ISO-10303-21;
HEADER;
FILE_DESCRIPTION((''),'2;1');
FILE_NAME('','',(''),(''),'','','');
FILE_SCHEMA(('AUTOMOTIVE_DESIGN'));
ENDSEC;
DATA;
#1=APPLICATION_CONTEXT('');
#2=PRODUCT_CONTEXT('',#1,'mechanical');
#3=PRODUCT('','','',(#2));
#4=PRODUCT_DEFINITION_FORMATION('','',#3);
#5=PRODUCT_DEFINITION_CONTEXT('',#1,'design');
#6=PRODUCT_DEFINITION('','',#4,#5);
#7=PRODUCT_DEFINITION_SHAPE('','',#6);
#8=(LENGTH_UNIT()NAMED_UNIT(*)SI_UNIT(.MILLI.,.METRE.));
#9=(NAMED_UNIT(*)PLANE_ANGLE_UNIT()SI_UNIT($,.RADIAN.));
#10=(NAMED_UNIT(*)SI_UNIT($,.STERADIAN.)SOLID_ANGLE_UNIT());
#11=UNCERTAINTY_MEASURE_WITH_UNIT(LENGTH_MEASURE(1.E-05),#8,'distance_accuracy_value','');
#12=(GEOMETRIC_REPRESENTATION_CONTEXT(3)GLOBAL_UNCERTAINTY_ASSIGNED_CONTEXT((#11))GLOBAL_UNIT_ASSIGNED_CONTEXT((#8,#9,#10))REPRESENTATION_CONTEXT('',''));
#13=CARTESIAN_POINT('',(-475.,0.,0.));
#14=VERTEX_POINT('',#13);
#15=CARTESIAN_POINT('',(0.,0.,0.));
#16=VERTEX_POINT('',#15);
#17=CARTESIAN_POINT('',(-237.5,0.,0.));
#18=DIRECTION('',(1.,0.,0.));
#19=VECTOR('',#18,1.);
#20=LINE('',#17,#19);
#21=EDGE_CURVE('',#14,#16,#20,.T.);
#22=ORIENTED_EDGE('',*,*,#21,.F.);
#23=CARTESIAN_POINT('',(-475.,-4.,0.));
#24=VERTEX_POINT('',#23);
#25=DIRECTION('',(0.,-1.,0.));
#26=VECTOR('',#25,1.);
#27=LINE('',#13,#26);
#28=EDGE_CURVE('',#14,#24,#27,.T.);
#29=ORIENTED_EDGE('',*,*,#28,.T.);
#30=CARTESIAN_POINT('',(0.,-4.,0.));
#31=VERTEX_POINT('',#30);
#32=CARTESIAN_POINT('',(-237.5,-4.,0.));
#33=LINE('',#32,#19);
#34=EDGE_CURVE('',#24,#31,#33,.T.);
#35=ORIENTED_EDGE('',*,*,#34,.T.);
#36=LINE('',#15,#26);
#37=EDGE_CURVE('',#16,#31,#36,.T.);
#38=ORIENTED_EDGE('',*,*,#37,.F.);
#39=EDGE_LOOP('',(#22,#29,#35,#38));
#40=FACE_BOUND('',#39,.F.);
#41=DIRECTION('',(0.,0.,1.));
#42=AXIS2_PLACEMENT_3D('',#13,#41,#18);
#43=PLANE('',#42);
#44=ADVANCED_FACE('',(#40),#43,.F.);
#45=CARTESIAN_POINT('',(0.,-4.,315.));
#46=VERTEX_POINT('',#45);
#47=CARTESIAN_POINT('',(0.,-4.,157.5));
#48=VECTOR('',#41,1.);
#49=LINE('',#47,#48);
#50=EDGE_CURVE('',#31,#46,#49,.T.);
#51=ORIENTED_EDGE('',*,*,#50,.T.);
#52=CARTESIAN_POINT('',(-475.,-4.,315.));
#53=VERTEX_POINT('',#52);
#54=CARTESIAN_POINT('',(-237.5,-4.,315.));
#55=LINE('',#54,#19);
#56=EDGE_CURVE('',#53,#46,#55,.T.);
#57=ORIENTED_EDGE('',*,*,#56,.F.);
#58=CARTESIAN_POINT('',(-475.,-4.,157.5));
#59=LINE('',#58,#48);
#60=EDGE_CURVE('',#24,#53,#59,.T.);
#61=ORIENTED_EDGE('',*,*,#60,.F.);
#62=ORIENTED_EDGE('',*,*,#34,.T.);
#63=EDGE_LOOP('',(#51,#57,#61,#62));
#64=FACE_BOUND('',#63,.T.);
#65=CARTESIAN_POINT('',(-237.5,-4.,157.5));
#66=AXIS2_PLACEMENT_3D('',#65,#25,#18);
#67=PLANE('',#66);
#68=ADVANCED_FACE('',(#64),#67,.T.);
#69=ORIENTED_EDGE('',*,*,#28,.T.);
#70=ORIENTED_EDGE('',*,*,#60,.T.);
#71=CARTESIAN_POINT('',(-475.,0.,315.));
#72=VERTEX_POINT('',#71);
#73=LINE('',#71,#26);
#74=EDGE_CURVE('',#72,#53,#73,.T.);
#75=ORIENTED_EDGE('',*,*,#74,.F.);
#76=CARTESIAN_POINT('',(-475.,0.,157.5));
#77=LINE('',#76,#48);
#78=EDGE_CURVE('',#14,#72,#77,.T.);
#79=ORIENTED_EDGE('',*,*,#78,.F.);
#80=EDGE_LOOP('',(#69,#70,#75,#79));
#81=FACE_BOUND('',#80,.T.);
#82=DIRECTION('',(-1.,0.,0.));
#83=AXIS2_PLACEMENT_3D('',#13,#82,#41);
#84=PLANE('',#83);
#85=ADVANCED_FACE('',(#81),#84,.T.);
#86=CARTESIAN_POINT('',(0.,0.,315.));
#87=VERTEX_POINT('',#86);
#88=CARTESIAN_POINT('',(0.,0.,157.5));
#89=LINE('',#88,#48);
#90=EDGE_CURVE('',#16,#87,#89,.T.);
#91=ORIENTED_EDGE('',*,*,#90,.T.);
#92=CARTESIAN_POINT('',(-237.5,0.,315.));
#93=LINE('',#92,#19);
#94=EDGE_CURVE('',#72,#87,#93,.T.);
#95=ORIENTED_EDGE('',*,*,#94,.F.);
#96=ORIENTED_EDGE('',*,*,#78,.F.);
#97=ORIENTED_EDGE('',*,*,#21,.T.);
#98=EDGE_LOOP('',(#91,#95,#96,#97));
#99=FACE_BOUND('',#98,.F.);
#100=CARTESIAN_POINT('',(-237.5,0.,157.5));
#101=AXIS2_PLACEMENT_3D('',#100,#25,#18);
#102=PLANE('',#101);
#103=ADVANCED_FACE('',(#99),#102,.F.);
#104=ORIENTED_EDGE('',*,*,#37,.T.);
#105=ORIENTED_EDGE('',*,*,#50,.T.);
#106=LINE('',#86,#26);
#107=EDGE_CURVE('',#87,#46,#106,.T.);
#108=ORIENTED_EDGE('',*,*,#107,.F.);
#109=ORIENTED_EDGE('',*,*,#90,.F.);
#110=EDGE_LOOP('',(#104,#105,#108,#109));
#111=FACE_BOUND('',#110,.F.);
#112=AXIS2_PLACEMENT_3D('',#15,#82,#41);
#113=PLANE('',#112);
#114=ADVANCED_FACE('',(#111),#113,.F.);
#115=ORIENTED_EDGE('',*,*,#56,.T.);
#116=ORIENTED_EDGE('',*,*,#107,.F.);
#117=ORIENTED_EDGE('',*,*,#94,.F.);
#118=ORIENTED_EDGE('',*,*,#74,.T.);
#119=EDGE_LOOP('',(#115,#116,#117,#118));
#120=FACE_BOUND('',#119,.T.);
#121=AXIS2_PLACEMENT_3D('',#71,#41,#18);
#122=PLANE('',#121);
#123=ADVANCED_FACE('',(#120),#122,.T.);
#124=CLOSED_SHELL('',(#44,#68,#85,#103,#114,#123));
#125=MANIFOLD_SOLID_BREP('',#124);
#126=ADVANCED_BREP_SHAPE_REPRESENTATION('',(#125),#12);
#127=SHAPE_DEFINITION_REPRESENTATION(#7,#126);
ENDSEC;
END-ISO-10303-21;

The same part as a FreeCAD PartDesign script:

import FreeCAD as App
import Part
import Sketcher

V = App.Vector

doc = App.newDocument("Part")
body = doc.addObject("PartDesign::Body", "Body")

# Sketch on XZ plane
sketch1 = body.newObject("Sketcher::SketchObject", "Sketch")
sketch1.AttachmentSupport = (doc.getObject("XZ_Plane"), [""])
sketch1.MapMode = "FlatFace"
sketch1.addGeometry([
    Part.LineSegment(V(-475, 315, 0), V(-475, 0, 0)),
    Part.LineSegment(V(-475, 0, 0), V(0, 0, 0)),
    Part.LineSegment(V(0, 0, 0), V(0, 315, 0)),
    Part.LineSegment(V(0, 315, 0), V(-475, 315, 0)),
], False)
sketch1.addConstraint([
    Sketcher.Constraint("Coincident", 0, 2, 1, 1),
    Sketcher.Constraint("Coincident", 1, 2, 2, 1),
    Sketcher.Constraint("Coincident", 2, 2, 3, 1),
    Sketcher.Constraint("Coincident", 3, 2, 0, 1),
    Sketcher.Constraint("Vertical", 0),
    Sketcher.Constraint("Horizontal", 1),
    Sketcher.Constraint("Vertical", 2),
    Sketcher.Constraint("Horizontal", 3),
    Sketcher.Constraint("Coincident", 1, 2, -1, 1),
    Sketcher.Constraint("DistanceX", 1, 1, 1, 2, 475.0),
    Sketcher.Constraint("DistanceY", 0, 2, 0, 1, 315.0),
])
pad1 = body.newObject("PartDesign::Pad", "Pad")
pad1.Profile = sketch1
pad1.Length = 4

doc.recompute()
